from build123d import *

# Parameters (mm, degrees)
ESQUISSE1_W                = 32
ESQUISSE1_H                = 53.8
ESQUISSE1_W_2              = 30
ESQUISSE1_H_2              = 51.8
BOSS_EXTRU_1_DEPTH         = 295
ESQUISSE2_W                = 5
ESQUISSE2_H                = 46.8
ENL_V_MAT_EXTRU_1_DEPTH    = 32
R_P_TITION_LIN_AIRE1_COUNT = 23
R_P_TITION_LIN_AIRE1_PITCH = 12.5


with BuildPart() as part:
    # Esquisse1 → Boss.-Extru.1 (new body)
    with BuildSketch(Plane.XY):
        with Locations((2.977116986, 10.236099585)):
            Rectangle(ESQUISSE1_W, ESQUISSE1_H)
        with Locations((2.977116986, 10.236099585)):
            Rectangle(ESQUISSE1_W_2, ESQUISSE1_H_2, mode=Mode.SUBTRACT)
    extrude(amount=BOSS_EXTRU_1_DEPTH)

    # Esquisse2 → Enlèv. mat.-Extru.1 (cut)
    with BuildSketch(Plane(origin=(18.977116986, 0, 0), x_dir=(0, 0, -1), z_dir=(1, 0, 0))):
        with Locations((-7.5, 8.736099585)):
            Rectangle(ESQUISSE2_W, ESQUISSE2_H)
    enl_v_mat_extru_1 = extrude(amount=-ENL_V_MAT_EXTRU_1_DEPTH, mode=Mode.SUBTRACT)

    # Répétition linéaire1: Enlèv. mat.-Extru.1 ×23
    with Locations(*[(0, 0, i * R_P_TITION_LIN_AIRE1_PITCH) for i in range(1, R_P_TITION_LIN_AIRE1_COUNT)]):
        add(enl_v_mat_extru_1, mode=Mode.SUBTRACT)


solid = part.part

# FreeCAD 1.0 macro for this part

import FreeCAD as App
import Part
import Sketcher


def add_polygon(sketch, points):
    """Adds a closed chain of lines whose ends are joined by coincident constraints."""
    first, n = sketch.GeometryCount, len(points)
    for a, b in zip(points, points[1:] + points[:1]):
        sketch.addGeometry(Part.LineSegment(App.Vector(*a, 0), App.Vector(*b, 0)), False)
    for i in range(n):
        sketch.addConstraint(Sketcher.Constraint("Coincident", first + i, 2, first + (i + 1) % n, 1))

doc = App.newDocument("Part")
body = doc.addObject("PartDesign::Body", "Body")

# Sketch on XY plane
sketch1 = body.newObject("Sketcher::SketchObject", "Sketch")
sketch1.AttachmentSupport = (doc.getObject("XY_Plane"), [""])
sketch1.MapMode = "FlatFace"
add_polygon(sketch1, [(-13, 37), (-13, -17), (19, -17), (19, 37)])  # lines 0-3
add_polygon(sketch1, [(18, -16), (-12, -16), (-12, 36), (18, 36)])  # lines 4-7
sketch1.addConstraint(Sketcher.Constraint("Vertical", 0))
sketch1.addConstraint(Sketcher.Constraint("Horizontal", 1))
sketch1.addConstraint(Sketcher.Constraint("Vertical", 2))
sketch1.addConstraint(Sketcher.Constraint("Horizontal", 3))
sketch1.addConstraint(Sketcher.Constraint("Horizontal", 4))
sketch1.addConstraint(Sketcher.Constraint("Vertical", 5))
sketch1.addConstraint(Sketcher.Constraint("Horizontal", 6))
sketch1.addConstraint(Sketcher.Constraint("Vertical", 7))
sketch1.addConstraint(Sketcher.Constraint("DistanceX", 1, 1, 1, 2, 32.0))
sketch1.addConstraint(Sketcher.Constraint("DistanceX", 4, 2, 4, 1, 30.0))
sketch1.addConstraint(Sketcher.Constraint("DistanceY", 0, 2, 0, 1, 53.8))
sketch1.addConstraint(Sketcher.Constraint("DistanceY", 5, 1, 5, 2, 51.8))
sketch1.addConstraint(Sketcher.Constraint("DistanceX", 0, 2, 4, 2, 1.0))
sketch1.addConstraint(Sketcher.Constraint("DistanceY", 0, 2, 4, 2, 1.0))
sketch1.addConstraint(Sketcher.Constraint("DistanceY", 0, 2, -1, 1, 16.6639))
sketch1.addConstraint(Sketcher.Constraint("DistanceX", 0, 2, -1, 1, 13.022883))
pad1 = body.newObject("PartDesign::Pad", "Pad")
pad1.Profile = sketch1
pad1.Length = 295

# Sketch on YZ plane
sketch2 = body.newObject("Sketcher::SketchObject", "Sketch001")
sketch2.AttachmentSupport = (doc.getObject("YZ_Plane"), [""])
sketch2.MapMode = "FlatFace"
sketch2.AttachmentOffset = App.Placement(App.Vector(0, 0, 18.977117), App.Rotation())
add_polygon(sketch2, [(32, 10), (-15, 10), (-15, 5), (32, 5)])  # lines 0-3
sketch2.addConstraint(Sketcher.Constraint("Horizontal", 0))
sketch2.addConstraint(Sketcher.Constraint("Vertical", 1))
sketch2.addConstraint(Sketcher.Constraint("Horizontal", 2))
sketch2.addConstraint(Sketcher.Constraint("Vertical", 3))
sketch2.addConstraint(Sketcher.Constraint("DistanceY", 1, 2, 1, 1, 5.0))
sketch2.addConstraint(Sketcher.Constraint("DistanceX", 0, 2, 0, 1, 46.8))
sketch2.addConstraint(Sketcher.Constraint("DistanceY", -1, 1, 0, 2, 10.0))
sketch2.addConstraint(Sketcher.Constraint("DistanceX", 0, 2, -1, 1, 14.6639))
pocket1 = body.newObject("PartDesign::Pocket", "Pocket")
pocket1.Profile = sketch2
pocket1.Length = 32
doc.recompute()

linearpattern = body.newObject("PartDesign::LinearPattern", "LinearPattern")
linearpattern.Originals = [pocket1]
linearpattern.Direction = (doc.getObject("Z_Axis"), [""])
linearpattern.Mode = "offset"
linearpattern.Offset = 12.5
linearpattern.Occurrences = 23
body.Tip = linearpattern

doc.recompute()
